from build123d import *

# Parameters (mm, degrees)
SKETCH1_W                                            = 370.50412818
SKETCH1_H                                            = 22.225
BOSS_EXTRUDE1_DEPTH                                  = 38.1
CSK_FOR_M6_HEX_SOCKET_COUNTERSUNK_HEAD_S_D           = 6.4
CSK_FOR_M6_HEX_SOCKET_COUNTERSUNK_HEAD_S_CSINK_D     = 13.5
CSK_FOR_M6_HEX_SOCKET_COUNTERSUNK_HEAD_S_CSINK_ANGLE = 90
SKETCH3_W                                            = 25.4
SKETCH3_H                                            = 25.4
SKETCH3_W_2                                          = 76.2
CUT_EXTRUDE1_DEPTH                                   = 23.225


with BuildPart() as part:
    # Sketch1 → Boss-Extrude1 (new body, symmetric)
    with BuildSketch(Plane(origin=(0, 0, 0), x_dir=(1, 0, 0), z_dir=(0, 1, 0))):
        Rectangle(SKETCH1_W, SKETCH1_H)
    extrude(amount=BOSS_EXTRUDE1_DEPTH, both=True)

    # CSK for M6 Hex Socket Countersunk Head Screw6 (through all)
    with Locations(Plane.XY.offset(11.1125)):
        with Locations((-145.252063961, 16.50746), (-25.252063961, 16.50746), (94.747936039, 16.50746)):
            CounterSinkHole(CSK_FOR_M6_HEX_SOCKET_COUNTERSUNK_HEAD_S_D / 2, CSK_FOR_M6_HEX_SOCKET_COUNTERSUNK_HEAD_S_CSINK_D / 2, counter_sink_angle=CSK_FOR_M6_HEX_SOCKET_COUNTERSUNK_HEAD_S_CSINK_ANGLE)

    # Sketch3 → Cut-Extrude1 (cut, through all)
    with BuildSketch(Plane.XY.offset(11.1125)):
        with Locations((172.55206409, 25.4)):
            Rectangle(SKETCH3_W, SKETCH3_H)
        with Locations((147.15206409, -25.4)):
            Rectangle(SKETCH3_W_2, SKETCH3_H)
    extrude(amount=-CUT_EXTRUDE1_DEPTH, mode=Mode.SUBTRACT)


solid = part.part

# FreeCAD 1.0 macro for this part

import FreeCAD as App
import Part
import Sketcher
Q = App.Units.Quantity


def add_polygon(sketch, points):
    """Adds a closed chain of lines whose ends are joined by coincident constraints."""
    first, n = sketch.GeometryCount, len(points)
    for a, b in zip(points, points[1:] + points[:1]):
        sketch.addGeometry(Part.LineSegment(App.Vector(*a, 0), App.Vector(*b, 0)), False)
    for i in range(n):
        sketch.addConstraint(Sketcher.Constraint("Coincident", first + i, 2, first + (i + 1) % n, 1))

doc = App.newDocument("Part")
body = doc.addObject("PartDesign::Body", "Body")

# Sketch on XZ plane
sketch1 = body.newObject("Sketcher::SketchObject", "Sketch")
sketch1.AttachmentSupport = (doc.getObject("XZ_Plane"), [""])
sketch1.MapMode = "FlatFace"
add_polygon(sketch1, [(-185.252064, -11.1125), (-185.252064, 11.1125), (185.252064, 11.1125), (185.252064, -11.1125)])  # lines 0-3
sketch1.addConstraint([
    Sketcher.Constraint("Vertical", 0),
    Sketcher.Constraint("Horizontal", 1),
    Sketcher.Constraint("Vertical", 2),
    Sketcher.Constraint("Horizontal", 3),
    Sketcher.Constraint("Symmetric", 0, 2, 2, 2, -1, 1),
    Sketcher.Constraint("DistanceY", 0, 1, 0, 2, Q("0.875 in")),
    Sketcher.Constraint("DistanceX", 1, 1, 1, 2, 370.504128),
])
pad1 = body.newObject("PartDesign::Pad", "Pad")
pad1.Profile = sketch1
pad1.Length = Q("3 in")
pad1.Midplane = True

# Sketch on XY plane
sketch2 = body.newObject("Sketcher::SketchObject", "Sketch001")
sketch2.AttachmentSupport = (doc.getObject("XY_Plane"), [""])
sketch2.MapMode = "FlatFace"
sketch2.AttachmentOffset = App.Placement(App.Vector(0, 0, 0.4375 * 25.4), App.Rotation())
sketch2.addGeometry([
    Part.Circle(App.Vector(-145.252064, 16.50746, 0), App.Vector(0, 0, 1), 3.2),
    Part.Circle(App.Vector(-25.252064, 16.50746, 0), App.Vector(0, 0, 1), 3.2),
    Part.Circle(App.Vector(94.747936, 16.50746, 0), App.Vector(0, 0, 1), 3.2),
], False)
sketch2.addConstraint([
    Sketcher.Constraint("Equal", 0, 1),
    Sketcher.Constraint("Equal", 1, 2),
    Sketcher.Constraint("Horizontal", 0, 3, 1, 3),
    Sketcher.Constraint("Horizontal", 1, 3, 2, 3),
    Sketcher.Constraint("Diameter", 0, 6.4),
    Sketcher.Constraint("DistanceY", -1, 1, 0, 3, Q("0.6499 in")),
    Sketcher.Constraint("DistanceX", 0, 3, 1, 3, 120.0),
    Sketcher.Constraint("DistanceX", 1, 3, 2, 3, 120.0),
    Sketcher.Constraint("DistanceX", 0, 3, -1, 1, 145.252064),
])
doc.recompute()
hole = body.newObject("PartDesign::Hole", "Hole")
hole.Profile = sketch2
hole.ThreadType = "None"
hole.Diameter = 6.4
hole.DepthType = "ThroughAll"
hole.HoleCutType = "Countersink"
hole.HoleCutDiameter = 13.5
hole.HoleCutCountersinkAngle = 90

# Sketch on XY plane
sketch3 = body.newObject("Sketcher::SketchObject", "Sketch002")
sketch3.AttachmentSupport = (doc.getObject("XY_Plane"), [""])
sketch3.MapMode = "FlatFace"
sketch3.AttachmentOffset = App.Placement(App.Vector(0, 0, 0.4375 * 25.4), App.Rotation())
add_polygon(sketch3, [(159.852064, 38.1), (159.852064, 12.7), (185.252064, 12.7), (185.252064, 38.1)])  # lines 0-3
add_polygon(sketch3, [(109.052064, -12.7), (109.052064, -38.1), (185.252064, -38.1), (185.252064, -12.7)])  # lines 4-7
sketch3.addConstraint([
    Sketcher.Constraint("Vertical", 0),
    Sketcher.Constraint("Horizontal", 1),
    Sketcher.Constraint("Vertical", 2),
    Sketcher.Constraint("Horizontal", 3),
    Sketcher.Constraint("Vertical", 4),
    Sketcher.Constraint("Horizontal", 5),
    Sketcher.Constraint("Vertical", 6),
    Sketcher.Constraint("Horizontal", 7),
    Sketcher.Constraint("Symmetric", 2, 2, 5, 2, -1),
    Sketcher.Constraint("Equal", 3, 0),
    Sketcher.Constraint("Equal", 2, 4),
    Sketcher.Constraint("DistanceX", 1, 1, 1, 2, Q("1 in")),
    Sketcher.Constraint("DistanceX", 5, 1, 5, 2, Q("3 in")),
    Sketcher.Constraint("DistanceY", 4, 2, 0, 2, Q("2 in")),
    Sketcher.Constraint("DistanceX", -1, 1, 0, 2, 159.852064),
])
pocket1 = body.newObject("PartDesign::Pocket", "Pocket")
pocket1.Profile = sketch3
pocket1.Type = "ThroughAll"

doc.recompute()
